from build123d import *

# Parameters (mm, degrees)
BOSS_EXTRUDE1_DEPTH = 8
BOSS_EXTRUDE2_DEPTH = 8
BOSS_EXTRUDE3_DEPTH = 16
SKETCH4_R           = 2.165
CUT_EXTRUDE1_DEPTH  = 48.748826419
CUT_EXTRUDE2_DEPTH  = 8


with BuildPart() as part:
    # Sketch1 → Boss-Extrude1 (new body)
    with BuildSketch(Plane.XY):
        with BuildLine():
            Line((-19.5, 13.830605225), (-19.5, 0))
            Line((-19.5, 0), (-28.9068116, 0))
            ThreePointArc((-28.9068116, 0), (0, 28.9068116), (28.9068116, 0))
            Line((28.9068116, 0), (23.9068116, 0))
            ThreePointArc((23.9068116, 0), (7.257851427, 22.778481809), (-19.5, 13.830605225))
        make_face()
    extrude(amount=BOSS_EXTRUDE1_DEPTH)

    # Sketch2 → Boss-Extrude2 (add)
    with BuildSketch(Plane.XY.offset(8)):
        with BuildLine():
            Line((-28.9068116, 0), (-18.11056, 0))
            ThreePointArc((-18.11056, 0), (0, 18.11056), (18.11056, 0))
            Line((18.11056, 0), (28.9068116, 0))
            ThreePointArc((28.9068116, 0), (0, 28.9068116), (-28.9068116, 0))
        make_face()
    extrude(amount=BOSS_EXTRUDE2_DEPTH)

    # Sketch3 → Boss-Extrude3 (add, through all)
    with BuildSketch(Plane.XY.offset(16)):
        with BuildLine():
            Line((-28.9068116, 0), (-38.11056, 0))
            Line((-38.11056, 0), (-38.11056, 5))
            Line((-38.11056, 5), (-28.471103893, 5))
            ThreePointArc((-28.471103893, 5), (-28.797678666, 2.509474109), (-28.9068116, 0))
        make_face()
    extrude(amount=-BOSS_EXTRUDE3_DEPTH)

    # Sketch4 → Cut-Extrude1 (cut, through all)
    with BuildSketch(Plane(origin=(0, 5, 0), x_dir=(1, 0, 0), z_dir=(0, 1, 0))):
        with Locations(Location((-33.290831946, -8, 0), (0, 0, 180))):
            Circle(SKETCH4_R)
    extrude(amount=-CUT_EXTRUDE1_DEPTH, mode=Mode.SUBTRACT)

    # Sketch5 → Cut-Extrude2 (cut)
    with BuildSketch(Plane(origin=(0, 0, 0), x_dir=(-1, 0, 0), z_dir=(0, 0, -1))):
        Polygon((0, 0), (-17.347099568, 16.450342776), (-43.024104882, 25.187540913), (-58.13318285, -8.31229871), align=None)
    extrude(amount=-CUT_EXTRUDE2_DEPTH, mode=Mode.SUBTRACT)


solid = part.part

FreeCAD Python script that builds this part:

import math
import FreeCAD as App
import Part
import Sketcher
Q = App.Units.Quantity


def add_polygon(sketch, points):
    """Adds a closed chain of lines whose ends are joined by coincident constraints."""
    first, n = sketch.GeometryCount, len(points)
    for a, b in zip(points, points[1:] + points[:1]):
        sketch.addGeometry(Part.LineSegment(App.Vector(*a, 0), App.Vector(*b, 0)), False)
    for i in range(n):
        sketch.addConstraint(Sketcher.Constraint("Coincident", first + i, 2, first + (i + 1) % n, 1))

doc = App.newDocument("Part")
body = doc.addObject("PartDesign::Body", "Body")

sketch1 = body.newObject("Sketcher::SketchObject", "Sketch")
sketch1.AttachmentSupport = (doc.getObject("XY_Plane"), [""])
sketch1.MapMode = "FlatFace"
sketch1.addGeometry(Part.LineSegment(App.Vector(-20, 0, 0), App.Vector(-20, 14, 0)), False)
sketch1.addGeometry(Part.ArcOfCircle(Part.Circle(App.Vector(0, 0, 0), App.Vector(0, 0, 1), 24), math.radians(0), math.radians(145)), False)
sketch1.addGeometry(Part.LineSegment(App.Vector(24, 0, 0), App.Vector(29, 0, 0)), False)
sketch1.addGeometry(Part.ArcOfCircle(Part.Circle(App.Vector(0, 0, 0), App.Vector(0, 0, 1), 29), math.radians(0), math.radians(180)), False)
sketch1.addGeometry(Part.LineSegment(App.Vector(-29, 0, 0), App.Vector(-20, 0, 0)), False)
sketch1.addConstraint(Sketcher.Constraint("Coincident", 0, 2, 1, 2))
sketch1.addConstraint(Sketcher.Constraint("Coincident", 1, 1, 2, 1))
sketch1.addConstraint(Sketcher.Constraint("Coincident", 2, 2, 3, 1))
sketch1.addConstraint(Sketcher.Constraint("Coincident", 3, 2, 4, 1))
sketch1.addConstraint(Sketcher.Constraint("Coincident", 4, 2, 0, 1))
sketch1.addConstraint(Sketcher.Constraint("Vertical", 0))
sketch1.addConstraint(Sketcher.Constraint("Horizontal", 2))
sketch1.addConstraint(Sketcher.Constraint("Horizontal", 4))
sketch1.addConstraint(Sketcher.Constraint("Coincident", 1, 3, -1, 1))
sketch1.addConstraint(Sketcher.Constraint("Coincident", 3, 3, -1, 1))
sketch1.addConstraint(Sketcher.Constraint("PointOnObject", 1, 1, -1))
sketch1.addConstraint(Sketcher.Constraint("PointOnObject", 3, 2, -1))
sketch1.addConstraint(Sketcher.Constraint("DistanceX", 2, 1, 2, 2, Q("5 mm")))
sketch1.addConstraint(Sketcher.Constraint("DistanceX", 0, 2, -1, 1, Q("19.5 mm")))
sketch1.addConstraint(Sketcher.Constraint("Radius", 1, Q("23.906812 mm")))
pad1 = body.newObject("PartDesign::Pad", "Pad")
pad1.Profile = sketch1
pad1.Length = 8

sketch2 = body.newObject("Sketcher::SketchObject", "Sketch001")
sketch2.AttachmentSupport = (doc.getObject("XY_Plane"), [""])
sketch2.MapMode = "FlatFace"
sketch2.AttachmentOffset = App.Placement(App.Vector(0, 0, 8), App.Rotation())
sketch2.addGeometry(Part.LineSegment(App.Vector(-29, 0, 0), App.Vector(-18, 0, 0)), False)
sketch2.addGeometry(Part.ArcOfCircle(Part.Circle(App.Vector(0, 0, 0), App.Vector(0, 0, 1), 18), math.radians(0), math.radians(180)), False)
sketch2.addGeometry(Part.LineSegment(App.Vector(18, 0, 0), App.Vector(29, 0, 0)), False)
sketch2.addGeometry(Part.ArcOfCircle(Part.Circle(App.Vector(0, 0, 0), App.Vector(0, 0, 1), 29), math.radians(0), math.radians(180)), False)
sketch2.addConstraint(Sketcher.Constraint("Coincident", 0, 2, 1, 2))
sketch2.addConstraint(Sketcher.Constraint("Coincident", 1, 1, 2, 1))
sketch2.addConstraint(Sketcher.Constraint("Coincident", 2, 2, 3, 1))
sketch2.addConstraint(Sketcher.Constraint("Coincident", 3, 2, 0, 1))
sketch2.addConstraint(Sketcher.Constraint("Horizontal", 0))
sketch2.addConstraint(Sketcher.Constraint("Horizontal", 2))
sketch2.addConstraint(Sketcher.Constraint("Coincident", 1, 3, -1, 1))
sketch2.addConstraint(Sketcher.Constraint("Coincident", 3, 3, -1, 1))
sketch2.addConstraint(Sketcher.Constraint("PointOnObject", 0, 2, -1))
sketch2.addConstraint(Sketcher.Constraint("PointOnObject", 1, 1, -1))
sketch2.addConstraint(Sketcher.Constraint("Radius", 1, Q("18.11056 mm")))
sketch2.addConstraint(Sketcher.Constraint("Radius", 3, Q("28.906812 mm")))
pad2 = body.newObject("PartDesign::Pad", "Pad001")
pad2.Profile = sketch2
pad2.Length = 8

sketch3 = body.newObject("Sketcher::SketchObject", "Sketch002")
sketch3.AttachmentSupport = (doc.getObject("XY_Plane"), [""])
sketch3.MapMode = "FlatFace"
sketch3.AttachmentOffset = App.Placement(App.Vector(0, 0, 16), App.Rotation())
sketch3.addGeometry(Part.LineSegment(App.Vector(-38, 0, 0), App.Vector(-29, 0, 0)), False)
sketch3.addGeometry(Part.ArcOfCircle(Part.Circle(App.Vector(0, 0, 0), App.Vector(0, 0, 1), 29), math.radians(170.04), math.radians(180)), False)
sketch3.addGeometry(Part.LineSegment(App.Vector(-28, 5, 0), App.Vector(-38, 5, 0)), False)
sketch3.addGeometry(Part.LineSegment(App.Vector(-38, 5, 0), App.Vector(-38, 0, 0)), False)
sketch3.addConstraint(Sketcher.Constraint("Coincident", 0, 2, 1, 2))
sketch3.addConstraint(Sketcher.Constraint("Coincident", 1, 1, 2, 1))
sketch3.addConstraint(Sketcher.Constraint("Coincident", 2, 2, 3, 1))
sketch3.addConstraint(Sketcher.Constraint("Coincident", 3, 2, 0, 1))
sketch3.addConstraint(Sketcher.Constraint("Horizontal", 0))
sketch3.addConstraint(Sketcher.Constraint("Horizontal", 2))
sketch3.addConstraint(Sketcher.Constraint("Vertical", 3))
sketch3.addConstraint(Sketcher.Constraint("Coincident", 1, 3, -1, 1))
sketch3.addConstraint(Sketcher.Constraint("PointOnObject", 0, 2, -1))
sketch3.addConstraint(Sketcher.Constraint("DistanceY", 3, 2, 3, 1, Q("5 mm")))
sketch3.addConstraint(Sketcher.Constraint("Radius", 1, Q("28.906812 mm")))
sketch3.addConstraint(Sketcher.Constraint("DistanceX", 0, 1, 0, 2, Q("9.203748 mm")))
pad3 = body.newObject("PartDesign::Pad", "Pad002")
pad3.Profile = sketch3
pad3.Length = 16
pad3.Reversed = True

sketch4 = body.newObject("Sketcher::SketchObject", "Sketch003")
sketch4.AttachmentSupport = (doc.getObject("XZ_Plane"), [""])
sketch4.MapMode = "FlatFace"
sketch4.AttachmentOffset = App.Placement(App.Vector(0, 0, -5), App.Rotation())
sketch4.addGeometry(Part.Circle(App.Vector(-33.3, 8, 0), App.Vector(0, 0, 1), 2.2), False)
sketch4.addConstraint(Sketcher.Constraint("Diameter", 0, Q("4.33 mm")))
sketch4.addConstraint(Sketcher.Constraint("DistanceY", -1, 1, 0, 3, Q("8 mm")))
sketch4.addConstraint(Sketcher.Constraint("DistanceX", 0, 3, -1, 1, Q("33.290832 mm")))
pocket1 = body.newObject("PartDesign::Pocket", "Pocket")
pocket1.Profile = sketch4
pocket1.Type = "ThroughAll"
pocket1.Reversed = True

sketch5 = body.newObject("Sketcher::SketchObject", "Sketch004")
sketch5.AttachmentSupport = (doc.getObject("XY_Plane"), [""])
sketch5.MapMode = "FlatFace"
add_polygon(sketch5, [(0, 0), (17, 16), (43, 25), (58, -8)])
sketch5.addConstraint(Sketcher.Constraint("Coincident", 3, 2, -1, 1))
sketch5.addConstraint(Sketcher.Constraint("DistanceX", -1, 1, 0, 2, Q("17.3471 mm")))
sketch5.addConstraint(Sketcher.Constraint("DistanceY", 2, 2, -1, 1, Q("8.312299 mm")))
sketch5.addConstraint(Sketcher.Constraint("DistanceY", 0, 2, 1, 2, Q("8.737198 mm")))
sketch5.addConstraint(Sketcher.Constraint("Distance", 0, Q("23.906812 mm")))
sketch5.addConstraint(Sketcher.Constraint("Distance", 2, Q("36.749469 mm")))
sketch5.addConstraint(Sketcher.Constraint("Distance", 3, Q("58.724452 mm")))
pocket2 = body.newObject("PartDesign::Pocket", "Pocket001")
pocket2.Profile = sketch5
pocket2.Length = 8
pocket2.Reversed = True

doc.recompute()
